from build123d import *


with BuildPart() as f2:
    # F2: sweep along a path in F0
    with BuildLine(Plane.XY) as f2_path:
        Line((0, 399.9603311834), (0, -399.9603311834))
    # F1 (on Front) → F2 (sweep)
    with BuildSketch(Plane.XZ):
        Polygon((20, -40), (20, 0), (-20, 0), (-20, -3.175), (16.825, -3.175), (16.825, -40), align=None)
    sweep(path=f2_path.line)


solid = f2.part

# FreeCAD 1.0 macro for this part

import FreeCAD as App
import Part
import Sketcher
from FreeCAD import Vector

doc = App.newDocument("Part")
body = doc.addObject("PartDesign::Body", "Body")

# Sketch on XZ plane
sketch1 = doc.addObject("Sketcher::SketchObject", "Sketch")
body.addObject(sketch1)
sketch1.AttachmentSupport = (doc.XZ_Plane, [""])
sketch1.MapMode = "FlatFace"
sketch1.addGeometry(Part.LineSegment(Vector(20, -40, 0), Vector(20, 0, 0)), False)
sketch1.addGeometry(Part.LineSegment(Vector(20, 0, 0), Vector(-20, 0, 0)), False)
sketch1.addGeometry(Part.LineSegment(Vector(-20, 0, 0), Vector(-20, -3.2, 0)), False)
sketch1.addGeometry(Part.LineSegment(Vector(-20, -3.2, 0), Vector(16.8, -3.2, 0)), False)
sketch1.addGeometry(Part.LineSegment(Vector(16.8, -3.2, 0), Vector(16.8, -40, 0)), False)
sketch1.addGeometry(Part.LineSegment(Vector(16.8, -40, 0), Vector(20, -40, 0)), False)
sketch1.addConstraint(Sketcher.Constraint("Coincident", 0, 2, 1, 1))
sketch1.addConstraint(Sketcher.Constraint("Coincident", 1, 2, 2, 1))
sketch1.addConstraint(Sketcher.Constraint("Coincident", 2, 2, 3, 1))
sketch1.addConstraint(Sketcher.Constraint("Coincident", 3, 2, 4, 1))
sketch1.addConstraint(Sketcher.Constraint("Coincident", 4, 2, 5, 1))
sketch1.addConstraint(Sketcher.Constraint("Coincident", 5, 2, 0, 1))
sketch1.addConstraint(Sketcher.Constraint("Vertical", 0))
sketch1.addConstraint(Sketcher.Constraint("Horizontal", 1))
sketch1.addConstraint(Sketcher.Constraint("Vertical", 2))
sketch1.addConstraint(Sketcher.Constraint("Horizontal", 3))
sketch1.addConstraint(Sketcher.Constraint("Vertical", 4))
sketch1.addConstraint(Sketcher.Constraint("Horizontal", 5))
sketch1.addConstraint(Sketcher.Constraint("Symmetric", 0, 2, 1, 2, -1, 1))
sketch1.addConstraint(Sketcher.Constraint("Equal", 1, 0))
sketch1.addConstraint(Sketcher.Constraint("Equal", 5, 2))
sketch1.addConstraint(Sketcher.Constraint("DistanceX", 1, 2, 1, 1, 40.0))
sketch1.addConstraint(Sketcher.Constraint("DistanceX", 3, 1, 3, 2, 36.825))

# Sketch on XY plane
sketch2 = doc.addObject("Sketcher::SketchObject", "Sketch001")
body.addObject(sketch2)
sketch2.AttachmentSupport = (doc.XY_Plane, [""])
sketch2.MapMode = "FlatFace"
sketch2.addGeometry(Part.LineSegment(Vector(0, 400, 0), Vector(0, -400, 0)), False)
sketch2.addConstraint(Sketcher.Constraint("Vertical", 0))
sketch2.addConstraint(Sketcher.Constraint("Symmetric", 0, 1, 0, 2, -1, 1))
sketch2.addConstraint(Sketcher.Constraint("DistanceY", 0, 2, 0, 1, 799.920662))
doc.recompute()

additivepipe = doc.addObject("PartDesign::AdditivePipe", "AdditivePipe")
body.addObject(additivepipe)
additivepipe.Profile = sketch1
additivepipe.Spine = (sketch2, ["Edge1"])

doc.recompute()
